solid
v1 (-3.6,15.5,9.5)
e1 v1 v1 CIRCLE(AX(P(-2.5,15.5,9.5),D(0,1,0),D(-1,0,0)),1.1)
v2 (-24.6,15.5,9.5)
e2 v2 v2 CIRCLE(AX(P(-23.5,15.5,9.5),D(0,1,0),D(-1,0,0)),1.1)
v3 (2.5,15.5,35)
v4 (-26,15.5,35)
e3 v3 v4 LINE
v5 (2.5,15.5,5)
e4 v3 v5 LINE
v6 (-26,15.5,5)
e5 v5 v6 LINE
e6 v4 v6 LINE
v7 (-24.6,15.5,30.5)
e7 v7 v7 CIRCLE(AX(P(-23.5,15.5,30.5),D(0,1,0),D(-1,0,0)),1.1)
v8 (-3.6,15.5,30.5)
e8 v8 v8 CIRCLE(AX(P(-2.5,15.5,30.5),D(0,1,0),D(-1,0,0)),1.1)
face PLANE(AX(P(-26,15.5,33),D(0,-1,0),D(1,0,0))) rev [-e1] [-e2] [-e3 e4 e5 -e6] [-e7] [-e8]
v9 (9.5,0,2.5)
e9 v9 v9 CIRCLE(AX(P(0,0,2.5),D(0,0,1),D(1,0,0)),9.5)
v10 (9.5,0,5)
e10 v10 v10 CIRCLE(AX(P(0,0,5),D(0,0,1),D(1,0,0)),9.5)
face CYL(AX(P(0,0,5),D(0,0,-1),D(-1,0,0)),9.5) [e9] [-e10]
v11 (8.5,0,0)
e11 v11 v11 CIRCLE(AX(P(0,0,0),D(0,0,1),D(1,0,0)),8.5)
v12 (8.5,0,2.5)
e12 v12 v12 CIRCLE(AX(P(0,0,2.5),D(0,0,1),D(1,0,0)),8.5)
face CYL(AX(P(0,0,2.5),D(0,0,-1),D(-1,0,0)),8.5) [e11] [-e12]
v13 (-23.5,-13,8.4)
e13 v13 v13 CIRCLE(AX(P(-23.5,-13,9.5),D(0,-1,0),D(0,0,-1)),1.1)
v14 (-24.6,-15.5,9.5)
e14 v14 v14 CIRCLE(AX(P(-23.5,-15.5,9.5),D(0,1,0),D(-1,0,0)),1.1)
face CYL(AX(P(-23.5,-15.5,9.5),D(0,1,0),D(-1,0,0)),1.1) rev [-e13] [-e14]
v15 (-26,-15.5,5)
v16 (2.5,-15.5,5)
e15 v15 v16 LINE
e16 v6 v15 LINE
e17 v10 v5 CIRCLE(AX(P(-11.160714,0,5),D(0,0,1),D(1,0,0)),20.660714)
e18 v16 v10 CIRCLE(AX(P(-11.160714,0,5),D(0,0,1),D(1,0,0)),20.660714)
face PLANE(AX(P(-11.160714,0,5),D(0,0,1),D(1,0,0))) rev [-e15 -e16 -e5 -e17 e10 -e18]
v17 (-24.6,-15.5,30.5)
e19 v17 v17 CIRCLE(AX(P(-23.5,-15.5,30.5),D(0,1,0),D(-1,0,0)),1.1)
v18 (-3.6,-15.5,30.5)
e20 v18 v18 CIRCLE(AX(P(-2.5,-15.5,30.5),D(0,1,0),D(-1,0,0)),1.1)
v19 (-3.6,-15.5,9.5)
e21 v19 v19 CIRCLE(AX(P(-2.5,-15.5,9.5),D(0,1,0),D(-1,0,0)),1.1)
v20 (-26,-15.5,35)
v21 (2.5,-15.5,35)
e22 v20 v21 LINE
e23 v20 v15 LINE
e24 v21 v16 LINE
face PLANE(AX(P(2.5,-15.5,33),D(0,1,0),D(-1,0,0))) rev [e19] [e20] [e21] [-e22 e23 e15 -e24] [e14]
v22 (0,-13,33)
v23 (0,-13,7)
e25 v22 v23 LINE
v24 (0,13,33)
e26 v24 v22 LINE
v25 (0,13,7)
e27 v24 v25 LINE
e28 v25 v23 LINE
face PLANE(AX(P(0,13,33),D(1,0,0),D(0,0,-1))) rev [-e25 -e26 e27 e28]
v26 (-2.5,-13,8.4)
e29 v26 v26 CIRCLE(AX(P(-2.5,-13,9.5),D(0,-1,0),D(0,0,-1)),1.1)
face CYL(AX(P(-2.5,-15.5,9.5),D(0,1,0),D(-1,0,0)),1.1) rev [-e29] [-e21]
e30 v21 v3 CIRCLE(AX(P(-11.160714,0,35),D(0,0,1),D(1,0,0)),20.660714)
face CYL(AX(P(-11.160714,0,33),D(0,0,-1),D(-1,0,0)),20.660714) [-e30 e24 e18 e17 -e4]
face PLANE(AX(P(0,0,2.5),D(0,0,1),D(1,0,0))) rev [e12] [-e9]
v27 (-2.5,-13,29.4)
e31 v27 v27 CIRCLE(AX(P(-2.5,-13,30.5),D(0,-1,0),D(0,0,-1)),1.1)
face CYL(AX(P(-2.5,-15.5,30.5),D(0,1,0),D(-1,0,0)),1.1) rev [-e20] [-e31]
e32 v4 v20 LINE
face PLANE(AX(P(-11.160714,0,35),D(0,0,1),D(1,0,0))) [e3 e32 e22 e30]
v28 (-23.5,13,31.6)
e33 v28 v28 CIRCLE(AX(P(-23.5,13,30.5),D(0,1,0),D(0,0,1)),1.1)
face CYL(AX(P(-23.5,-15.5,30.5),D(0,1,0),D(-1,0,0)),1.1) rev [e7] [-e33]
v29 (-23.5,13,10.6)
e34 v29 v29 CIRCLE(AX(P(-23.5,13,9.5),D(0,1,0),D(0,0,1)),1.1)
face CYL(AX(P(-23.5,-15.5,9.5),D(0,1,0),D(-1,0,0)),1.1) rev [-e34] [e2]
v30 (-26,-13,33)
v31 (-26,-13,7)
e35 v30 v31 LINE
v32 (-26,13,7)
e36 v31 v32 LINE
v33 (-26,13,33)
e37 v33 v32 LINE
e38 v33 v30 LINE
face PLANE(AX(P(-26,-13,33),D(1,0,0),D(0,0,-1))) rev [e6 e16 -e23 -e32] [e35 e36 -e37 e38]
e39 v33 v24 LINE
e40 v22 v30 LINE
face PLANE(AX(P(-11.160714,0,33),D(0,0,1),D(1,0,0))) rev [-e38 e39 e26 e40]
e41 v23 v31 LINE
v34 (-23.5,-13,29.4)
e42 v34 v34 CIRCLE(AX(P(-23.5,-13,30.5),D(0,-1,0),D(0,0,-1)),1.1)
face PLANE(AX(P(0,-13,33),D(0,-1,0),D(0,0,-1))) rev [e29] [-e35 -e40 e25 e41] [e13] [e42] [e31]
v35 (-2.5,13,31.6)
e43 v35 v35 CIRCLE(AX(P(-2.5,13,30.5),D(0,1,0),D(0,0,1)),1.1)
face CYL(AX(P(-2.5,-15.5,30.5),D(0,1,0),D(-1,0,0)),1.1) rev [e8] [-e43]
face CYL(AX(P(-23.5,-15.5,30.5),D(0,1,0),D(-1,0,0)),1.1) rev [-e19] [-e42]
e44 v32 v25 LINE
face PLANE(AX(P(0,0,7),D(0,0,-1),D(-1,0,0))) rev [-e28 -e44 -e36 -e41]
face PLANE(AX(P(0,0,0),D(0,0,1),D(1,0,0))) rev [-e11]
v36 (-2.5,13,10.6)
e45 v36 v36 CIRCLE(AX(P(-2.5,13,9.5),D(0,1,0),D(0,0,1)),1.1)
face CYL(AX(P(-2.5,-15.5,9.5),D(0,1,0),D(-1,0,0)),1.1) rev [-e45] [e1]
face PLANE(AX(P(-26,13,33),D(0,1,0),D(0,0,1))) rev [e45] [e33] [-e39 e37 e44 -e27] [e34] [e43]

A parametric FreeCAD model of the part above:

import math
import FreeCAD as App
import Part
import Sketcher

V = App.Vector
Q = App.Units.Quantity

doc = App.newDocument("Part")
body = doc.addObject("PartDesign::Body", "Body")

sketch1 = body.newObject("Sketcher::SketchObject", "Sketch")
sketch1.AttachmentSupport = (doc.getObject("XY_Plane"), [""])
sketch1.MapMode = "FlatFace"
sketch1.addGeometry(Part.Circle(V(0, 0, 0), V(0, 0, 1), 8), False)
sketch1.addConstraint([
    Sketcher.Constraint("Coincident", 0, 3, -1, 1),
    Sketcher.Constraint("Diameter", 0, Q("17 mm")),
])
pad1 = body.newObject("PartDesign::Pad", "Pad")
pad1.Profile = sketch1
pad1.Length = 2.5

sketch2 = body.newObject("Sketcher::SketchObject", "Sketch001")
sketch2.AttachmentSupport = (doc.getObject("XY_Plane"), [""])
sketch2.MapMode = "FlatFace"
sketch2.AttachmentOffset = App.Placement(V(0, 0, 2.5), App.Rotation())
sketch2.addGeometry(Part.Circle(V(0, 0, 0), V(0, 0, 1), 10), False)
sketch2.addConstraint([
    Sketcher.Constraint("Coincident", 0, 3, -1, 1),
    Sketcher.Constraint("Diameter", 0, Q("19 mm")),
])
pad2 = body.newObject("PartDesign::Pad", "Pad001")
pad2.Profile = sketch2
pad2.Length = 2.5

sketch3 = body.newObject("Sketcher::SketchObject", "Sketch002")
sketch3.AttachmentSupport = (doc.getObject("XY_Plane"), [""])
sketch3.MapMode = "FlatFace"
sketch3.AttachmentOffset = App.Placement(V(0, 0, 5), App.Rotation())
sketch3.addGeometry([
    Part.LineSegment(V(2.5, 15.5, 0), V(-26, 15.5, 0)),
    Part.LineSegment(V(-26, 15.5, 0), V(-26, 13, 0)),
    Part.LineSegment(V(-26, 13, 0), V(0, 13, 0)),
    Part.LineSegment(V(0, 13, 0), V(0, -13, 0)),
    Part.LineSegment(V(0, -13, 0), V(-26, -13, 0)),
    Part.LineSegment(V(-26, -13, 0), V(-26, -15.5, 0)),
    Part.LineSegment(V(-26, -15.5, 0), V(2.5, -15.5, 0)),
    Part.ArcOfCircle(Part.Circle(V(-11.2, 0, 0), V(0, 0, 1), 20.7), math.radians(-49), math.radians(49)),
], False)
sketch3.addConstraint([
    Sketcher.Constraint("Coincident", 0, 2, 1, 1),
    Sketcher.Constraint("Coincident", 1, 2, 2, 1),
    Sketcher.Constraint("Coincident", 2, 2, 3, 1),
    Sketcher.Constraint("Coincident", 3, 2, 4, 1),
    Sketcher.Constraint("Coincident", 4, 2, 5, 1),
    Sketcher.Constraint("Coincident", 5, 2, 6, 1),
    Sketcher.Constraint("Coincident", 6, 2, 7, 1),
    Sketcher.Constraint("Coincident", 7, 2, 0, 1),
    Sketcher.Constraint("Horizontal", 0),
    Sketcher.Constraint("Vertical", 1),
    Sketcher.Constraint("Horizontal", 2),
    Sketcher.Constraint("Vertical", 3),
    Sketcher.Constraint("Horizontal", 4),
    Sketcher.Constraint("Vertical", 5),
    Sketcher.Constraint("Horizontal", 6),
    Sketcher.Constraint("Symmetric", 2, 2, 3, 2, -1, 1),
    Sketcher.Constraint("Symmetric", 0, 2, 5, 2, -1),
    Sketcher.Constraint("PointOnObject", 7, 3, -1),
    Sketcher.Constraint("Equal", 4, 3),
    Sketcher.Constraint("DistanceX", 2, 1, 2, 2, Q("26 mm")),
    Sketcher.Constraint("DistanceX", 0, 2, 0, 1, Q("28.5 mm")),
    Sketcher.Constraint("DistanceY", 1, 2, 1, 1, Q("2.5 mm")),
    Sketcher.Constraint("Radius", 7, Q("20.660714 mm")),
])
pad3 = body.newObject("PartDesign::Pad", "Pad002")
pad3.Profile = sketch3
pad3.Length = 28

sketch4 = body.newObject("Sketcher::SketchObject", "Sketch003")
sketch4.AttachmentSupport = (doc.getObject("XY_Plane"), [""])
sketch4.MapMode = "FlatFace"
sketch4.AttachmentOffset = App.Placement(V(0, 0, 5), App.Rotation())
sketch4.addGeometry([
    Part.LineSegment(V(0, 13, 0), V(0, -13, 0)),
    Part.LineSegment(V(0, -13, 0), V(-26, -13, 0)),
    Part.LineSegment(V(-26, -13, 0), V(-26, 13, 0)),
    Part.LineSegment(V(-26, 13, 0), V(0, 13, 0)),
], False)
sketch4.addConstraint([
    Sketcher.Constraint("Coincident", 0, 2, 1, 1),
    Sketcher.Constraint("Coincident", 1, 2, 2, 1),
    Sketcher.Constraint("Coincident", 2, 2, 3, 1),
    Sketcher.Constraint("Coincident", 3, 2, 0, 1),
    Sketcher.Constraint("Vertical", 0),
    Sketcher.Constraint("Horizontal", 1),
    Sketcher.Constraint("Vertical", 2),
    Sketcher.Constraint("Horizontal", 3),
    Sketcher.Constraint("Symmetric", 0, 2, 3, 2, -1, 1),
    Sketcher.Constraint("Equal", 3, 0),
    Sketcher.Constraint("DistanceX", 1, 2, 1, 1, Q("26 mm")),
])
pad4 = body.newObject("PartDesign::Pad", "Pad003")
pad4.Profile = sketch4
pad4.Length = 2

sketch5 = body.newObject("Sketcher::SketchObject", "Sketch004")
sketch5.AttachmentSupport = (doc.getObject("XY_Plane"), [""])
sketch5.MapMode = "FlatFace"
sketch5.AttachmentOffset = App.Placement(V(0, 0, 33), App.Rotation())
sketch5.addGeometry([
    Part.LineSegment(V(-26, 16, 0), V(-26, -16, 0)),
    Part.LineSegment(V(-26, -16, 0), V(2, -16, 0)),
    Part.ArcOfCircle(Part.Circle(V(-11, 0, 0), V(0, 0, 1), 21), math.radians(-49), math.radians(49)),
    Part.LineSegment(V(2, 16, 0), V(-26, 16, 0)),
], False)
sketch5.addConstraint([
    Sketcher.Constraint("Coincident", 0, 2, 1, 1),
    Sketcher.Constraint("Coincident", 1, 2, 2, 1),
    Sketcher.Constraint("Coincident", 2, 2, 3, 1),
    Sketcher.Constraint("Coincident", 3, 2, 0, 1),
    Sketcher.Constraint("Vertical", 0),
    Sketcher.Constraint("Horizontal", 1),
    Sketcher.Constraint("Horizontal", 3),
    Sketcher.Constraint("Symmetric", 1, 2, 2, 2, -1),
    Sketcher.Constraint("DistanceY", 0, 2, 0, 1, Q("31 mm")),
    Sketcher.Constraint("DistanceX", 1, 1, 1, 2, Q("28.5 mm")),
    Sketcher.Constraint("DistanceX", 0, 2, -1, 1, Q("26 mm")),
    Sketcher.Constraint("Radius", 2, Q("20.660714 mm")),
])
pad5 = body.newObject("PartDesign::Pad", "Pad004")
pad5.Profile = sketch5
pad5.Length = 2

sketch6 = body.newObject("Sketcher::SketchObject", "Sketch005")
sketch6.AttachmentSupport = (doc.getObject("XZ_Plane"), [""])
sketch6.MapMode = "FlatFace"
sketch6.AttachmentOffset = App.Placement(V(0, 0, -15.5), App.Rotation())
sketch6.addGeometry([
    Part.Circle(V(-23.5, 9.5, 0), V(0, 0, 1), 1.1),
    Part.Circle(V(-2.5, 9.5, 0), V(0, 0, 1), 1.1),
    Part.Circle(V(-2.5, 30.5, 0), V(0, 0, 1), 1.1),
    Part.Circle(V(-23.5, 30.5, 0), V(0, 0, 1), 1.1),
], False)
sketch6.addConstraint([
    Sketcher.Constraint("Equal", 0, 1),
    Sketcher.Constraint("Equal", 1, 2),
    Sketcher.Constraint("Equal", 2, 3),
    Sketcher.Constraint("Horizontal", 0, 3, 1, 3),
    Sketcher.Constraint("Horizontal", 2, 3, 3, 3),
    Sketcher.Constraint("Vertical", 1, 3, 2, 3),
    Sketcher.Constraint("Vertical", 0, 3, 3, 3),
    Sketcher.Constraint("Diameter", 0, Q("2.2 mm")),
    Sketcher.Constraint("DistanceX", 0, 3, 1, 3, Q("21 mm")),
    Sketcher.Constraint("DistanceY", 1, 3, 2, 3, Q("21 mm")),
    Sketcher.Constraint("DistanceX", 0, 3, -1, 1, Q("23.5 mm")),
    Sketcher.Constraint("DistanceY", -1, 1, 0, 3, Q("9.5 mm")),
])
pocket1 = body.newObject("PartDesign::Pocket", "Pocket")
pocket1.Profile = sketch6
pocket1.Type = "ThroughAll"
pocket1.Reversed = True

doc.recompute()
